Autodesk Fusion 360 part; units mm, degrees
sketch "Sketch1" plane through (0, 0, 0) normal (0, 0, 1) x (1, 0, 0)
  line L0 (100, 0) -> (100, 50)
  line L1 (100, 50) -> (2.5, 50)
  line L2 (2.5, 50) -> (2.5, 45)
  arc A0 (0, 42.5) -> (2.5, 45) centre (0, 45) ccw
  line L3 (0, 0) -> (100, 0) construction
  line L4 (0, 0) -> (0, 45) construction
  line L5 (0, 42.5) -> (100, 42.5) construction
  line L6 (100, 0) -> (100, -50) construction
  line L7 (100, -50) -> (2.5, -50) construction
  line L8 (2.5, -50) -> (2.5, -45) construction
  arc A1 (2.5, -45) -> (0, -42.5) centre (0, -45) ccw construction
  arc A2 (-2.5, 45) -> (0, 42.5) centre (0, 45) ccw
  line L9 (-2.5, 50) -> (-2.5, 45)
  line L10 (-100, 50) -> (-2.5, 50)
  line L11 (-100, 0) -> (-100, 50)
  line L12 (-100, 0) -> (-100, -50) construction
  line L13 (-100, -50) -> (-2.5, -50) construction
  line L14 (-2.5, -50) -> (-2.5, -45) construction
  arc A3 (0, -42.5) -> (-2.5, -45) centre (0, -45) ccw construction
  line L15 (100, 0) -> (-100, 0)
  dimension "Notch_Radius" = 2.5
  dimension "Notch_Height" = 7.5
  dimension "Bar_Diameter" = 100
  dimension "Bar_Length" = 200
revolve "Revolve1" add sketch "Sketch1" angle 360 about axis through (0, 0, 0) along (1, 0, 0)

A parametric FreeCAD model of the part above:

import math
import FreeCAD as App
import Part
import Sketcher

V = App.Vector
Q = App.Units.Quantity

doc = App.newDocument("Part")
params = doc.addObject("Spreadsheet::Sheet", "Params")
for row, (alias, value) in enumerate([
    ("sketch1_radius", "2.5 mm"),
    ("sketch1_width", "200 mm"),
    ("sketch1_height", "50 mm"),
    ("sketch1_height2", "5 mm"),
    ("revolution_angle", "360 deg"),
], start=1):
    params.set(f"A{row}", alias)
    params.set(f"B{row}", "=" + value)
    params.setAlias(f"B{row}", alias)

body = doc.addObject("PartDesign::Body", "Body")

# Sketch on XY plane
sketch1 = body.newObject("Sketcher::SketchObject", "Sketch")
sketch1.AttachmentSupport = (doc.getObject("XY_Plane"), [""])
sketch1.MapMode = "FlatFace"
sketch1.addGeometry(Part.LineSegment(V(-100, 0, 0), V(100, 0, 0)), False)
sketch1.addGeometry(Part.LineSegment(V(100, 0, 0), V(100, 50, 0)), False)
sketch1.addGeometry(Part.LineSegment(V(100, 50, 0), V(2.5, 50, 0)), False)
sketch1.addGeometry(Part.LineSegment(V(2.5, 50, 0), V(2.5, 45, 0)), False)
sketch1.addGeometry(Part.ArcOfCircle(Part.Circle(V(0, 45, 0), V(0, 0, 1), 2.5), math.radians(180), math.radians(360)), False)
sketch1.addGeometry(Part.LineSegment(V(-2.5, 45, 0), V(-2.5, 50, 0)), False)
sketch1.addGeometry(Part.LineSegment(V(-2.5, 50, 0), V(-100, 50, 0)), False)
sketch1.addGeometry(Part.LineSegment(V(-100, 50, 0), V(-100, 0, 0)), False)
sketch1.addConstraint(Sketcher.Constraint("Coincident", 0, 2, 1, 1))
sketch1.addConstraint(Sketcher.Constraint("Coincident", 1, 2, 2, 1))
sketch1.addConstraint(Sketcher.Constraint("Coincident", 2, 2, 3, 1))
sketch1.addConstraint(Sketcher.Constraint("Tangent", 3, 2, 4, 2))
sketch1.addConstraint(Sketcher.Constraint("Tangent", 4, 1, 5, 1))
sketch1.addConstraint(Sketcher.Constraint("Coincident", 5, 2, 6, 1))
sketch1.addConstraint(Sketcher.Constraint("Coincident", 6, 2, 7, 1))
sketch1.addConstraint(Sketcher.Constraint("Coincident", 7, 2, 0, 1))
sketch1.addConstraint(Sketcher.Constraint("Horizontal", 0))
sketch1.addConstraint(Sketcher.Constraint("Vertical", 1))
sketch1.addConstraint(Sketcher.Constraint("Horizontal", 2))
sketch1.addConstraint(Sketcher.Constraint("Vertical", 3))
sketch1.addConstraint(Sketcher.Constraint("Vertical", 5))
sketch1.addConstraint(Sketcher.Constraint("Horizontal", 6))
sketch1.addConstraint(Sketcher.Constraint("Vertical", 7))
sketch1.addConstraint(Sketcher.Constraint("Symmetric", 0, 2, 7, 2, -1, 1))
sketch1.addConstraint(Sketcher.Constraint("Symmetric", 2, 2, 5, 2, -2))
sketch1.addConstraint(Sketcher.Constraint("Radius", 4, Q("2.5 mm")))
sketch1.addConstraint(Sketcher.Constraint("DistanceX", 0, 1, 0, 2, Q("200 mm")))
sketch1.addConstraint(Sketcher.Constraint("DistanceY", 1, 1, 1, 2, Q("50 mm")))
sketch1.addConstraint(Sketcher.Constraint("DistanceY", 3, 2, 3, 1, Q("5 mm")))
sketch1.setExpression("Constraints[17]", "Params.sketch1_radius")
sketch1.setExpression("Constraints[18]", "Params.sketch1_width")
sketch1.setExpression("Constraints[19]", "Params.sketch1_height")
sketch1.setExpression("Constraints[20]", "Params.sketch1_height2")
revolution = body.newObject("PartDesign::Revolution", "Revolution")
revolution.Profile = sketch1
revolution.ReferenceAxis = (sketch1, ["H_Axis"])
revolution.setExpression("Angle", "Params.revolution_angle")

doc.recompute()
